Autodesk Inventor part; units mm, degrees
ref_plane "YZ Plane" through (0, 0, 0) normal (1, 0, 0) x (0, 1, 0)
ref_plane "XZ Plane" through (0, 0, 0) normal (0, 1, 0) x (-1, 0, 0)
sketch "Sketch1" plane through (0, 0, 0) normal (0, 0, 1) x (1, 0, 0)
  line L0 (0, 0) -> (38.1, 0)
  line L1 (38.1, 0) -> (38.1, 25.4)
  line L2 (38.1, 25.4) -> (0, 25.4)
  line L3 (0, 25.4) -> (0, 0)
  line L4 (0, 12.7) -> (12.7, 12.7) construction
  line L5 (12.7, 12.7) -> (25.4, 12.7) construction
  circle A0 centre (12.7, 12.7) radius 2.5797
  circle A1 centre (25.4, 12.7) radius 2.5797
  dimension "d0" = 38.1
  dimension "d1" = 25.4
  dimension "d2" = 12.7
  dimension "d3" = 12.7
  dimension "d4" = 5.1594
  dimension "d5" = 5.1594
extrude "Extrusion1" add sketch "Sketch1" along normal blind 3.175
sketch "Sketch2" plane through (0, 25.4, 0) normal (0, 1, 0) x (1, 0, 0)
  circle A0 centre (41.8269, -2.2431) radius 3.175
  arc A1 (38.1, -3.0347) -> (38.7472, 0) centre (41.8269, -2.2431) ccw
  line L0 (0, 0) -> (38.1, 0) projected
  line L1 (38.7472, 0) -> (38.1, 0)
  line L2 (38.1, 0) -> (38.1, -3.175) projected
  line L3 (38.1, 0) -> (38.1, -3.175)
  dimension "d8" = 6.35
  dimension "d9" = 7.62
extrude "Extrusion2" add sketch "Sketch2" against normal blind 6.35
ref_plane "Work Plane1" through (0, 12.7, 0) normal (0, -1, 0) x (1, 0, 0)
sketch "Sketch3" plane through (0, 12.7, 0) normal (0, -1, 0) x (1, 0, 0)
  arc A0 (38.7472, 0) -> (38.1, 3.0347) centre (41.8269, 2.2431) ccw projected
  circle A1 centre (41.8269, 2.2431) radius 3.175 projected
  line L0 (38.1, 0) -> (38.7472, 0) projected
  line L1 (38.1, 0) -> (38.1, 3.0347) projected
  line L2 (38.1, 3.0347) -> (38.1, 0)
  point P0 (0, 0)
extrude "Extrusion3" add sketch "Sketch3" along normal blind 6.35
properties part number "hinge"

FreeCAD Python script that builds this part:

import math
import FreeCAD as App
import Part
import Sketcher

V = App.Vector
Q = App.Units.Quantity


def add_polygon(sketch, points):
    """Adds a closed chain of lines whose ends are joined by coincident constraints."""
    first, n = sketch.GeometryCount, len(points)
    for a, b in zip(points, points[1:] + points[:1]):
        sketch.addGeometry(Part.LineSegment(App.Vector(*a, 0), App.Vector(*b, 0)), False)
    for i in range(n):
        sketch.addConstraint(Sketcher.Constraint("Coincident", first + i, 2, first + (i + 1) % n, 1))

doc = App.newDocument("Part")
body = doc.addObject("PartDesign::Body", "Body")

sketch1 = body.newObject("Sketcher::SketchObject", "Sketch")
sketch1.AttachmentSupport = (doc.getObject("XY_Plane"), [""])
sketch1.MapMode = "FlatFace"
add_polygon(sketch1, [(0, 25.4), (0, 0), (38.1, 0), (38.1, 25.4)])
sketch1.addGeometry(Part.Circle(V(12.7, 12.7, 0), V(0, 0, 1), 2.5797), False)
sketch1.addGeometry(Part.Circle(V(25.4, 12.7, 0), V(0, 0, 1), 2.5797), False)
sketch1.addConstraint([
    Sketcher.Constraint("Vertical", 0),
    Sketcher.Constraint("Horizontal", 1),
    Sketcher.Constraint("Vertical", 2),
    Sketcher.Constraint("Horizontal", 3),
    Sketcher.Constraint("Coincident", 0, 2, -1, 1),
    Sketcher.Constraint("Equal", 4, 5),
    Sketcher.Constraint("Horizontal", 4, 3, 5, 3),
    Sketcher.Constraint("DistanceY", 0, 2, 0, 1, Q("1 in")),
    Sketcher.Constraint("Diameter", 4, Q("0.203126 in")),
    Sketcher.Constraint("DistanceX", 1, 1, 1, 2, Q("1.5 in")),
    Sketcher.Constraint("DistanceX", -1, 1, 5, 3, Q("1 in")),
    Sketcher.Constraint("DistanceX", 4, 3, 1, 2, Q("1 in")),
    Sketcher.Constraint("DistanceY", -1, 1, 4, 3, Q("0.5 in")),
])
pad1 = body.newObject("PartDesign::Pad", "Pad")
pad1.Profile = sketch1
pad1.Length = Q("0.125 in")

sketch2 = body.newObject("Sketcher::SketchObject", "Sketch001")
sketch2.AttachmentSupport = (doc.getObject("XZ_Plane"), [""])
sketch2.MapMode = "FlatFace"
sketch2.AttachmentOffset = App.Placement(V(0, 0, -1 * 25.4), App.Rotation())
sketch2.addGeometry([
    Part.LineSegment(V(38.1, 0, 0), V(38.1, 3.0347, 0)),
    Part.ArcOfCircle(Part.Circle(V(41.8269, 2.2431, 0), V(0, 0, 1), 3.810041), math.radians(-143.932271), math.radians(168.008488)),
    Part.LineSegment(V(38.7472, 0, 0), V(38.1, 0, 0)),
    Part.Circle(V(41.8269, 2.2431, 0), V(0, 0, 1), 3.175),
], False)
sketch2.addConstraint([
    Sketcher.Constraint("Coincident", 0, 2, 1, 2),
    Sketcher.Constraint("Coincident", 1, 1, 2, 1),
    Sketcher.Constraint("Coincident", 2, 2, 0, 1),
    Sketcher.Constraint("Vertical", 0),
    Sketcher.Constraint("Horizontal", 2),
    Sketcher.Constraint("Coincident", 3, 3, 1, 3),
    Sketcher.Constraint("PointOnObject", 1, 1, -1),
    Sketcher.Constraint("Diameter", 3, Q("0.25 in")),
    Sketcher.Constraint("Radius", 1, Q("0.15 in")),
    Sketcher.Constraint("DistanceX", -1, 1, 0, 2, Q("1.5 in")),
    Sketcher.Constraint("DistanceX", 2, 2, 2, 1, 0.6472),
    Sketcher.Constraint("DistanceY", 0, 1, 0, 2, 3.0347),
])
pad2 = body.newObject("PartDesign::Pad", "Pad001")
pad2.Profile = sketch2
pad2.Length = Q("0.25 in")

sketch3 = body.newObject("Sketcher::SketchObject", "Sketch002")
sketch3.AttachmentSupport = (doc.getObject("XZ_Plane"), [""])
sketch3.MapMode = "FlatFace"
sketch3.AttachmentOffset = App.Placement(V(0, 0, -0.5 * 25.4), App.Rotation())
sketch3.addGeometry([
    Part.LineSegment(V(38.1, 0, 0), V(38.7472, 0, 0)),
    Part.ArcOfCircle(Part.Circle(V(41.8269, 2.2431, 0), V(0, 0, 1), 3.809993), math.radians(-143.932271), math.radians(168.008488)),
    Part.LineSegment(V(38.1, 3.0347, 0), V(38.1, 0, 0)),
    Part.Circle(V(41.8269, 2.2431, 0), V(0, 0, 1), 3.175),
], False)
sketch3.addConstraint([
    Sketcher.Constraint("Coincident", 0, 2, 1, 1),
    Sketcher.Constraint("Coincident", 1, 2, 2, 1),
    Sketcher.Constraint("Coincident", 2, 2, 0, 1),
    Sketcher.Constraint("Horizontal", 0),
    Sketcher.Constraint("Vertical", 2),
    Sketcher.Constraint("Coincident", 3, 3, 1, 3),
    Sketcher.Constraint("PointOnObject", 0, 2, -1),
    Sketcher.Constraint("Diameter", 3, Q("0.25 in")),
    Sketcher.Constraint("Radius", 1, Q("0.15 in")),
    Sketcher.Constraint("DistanceX", -1, 1, 1, 2, Q("1.5 in")),
    Sketcher.Constraint("DistanceX", 0, 1, 0, 2, 0.6472),
    Sketcher.Constraint("DistanceY", 2, 2, 2, 1, 3.0347),
])
pad3 = body.newObject("PartDesign::Pad", "Pad002")
pad3.Profile = sketch3
pad3.Length = Q("0.25 in")

doc.recompute()
